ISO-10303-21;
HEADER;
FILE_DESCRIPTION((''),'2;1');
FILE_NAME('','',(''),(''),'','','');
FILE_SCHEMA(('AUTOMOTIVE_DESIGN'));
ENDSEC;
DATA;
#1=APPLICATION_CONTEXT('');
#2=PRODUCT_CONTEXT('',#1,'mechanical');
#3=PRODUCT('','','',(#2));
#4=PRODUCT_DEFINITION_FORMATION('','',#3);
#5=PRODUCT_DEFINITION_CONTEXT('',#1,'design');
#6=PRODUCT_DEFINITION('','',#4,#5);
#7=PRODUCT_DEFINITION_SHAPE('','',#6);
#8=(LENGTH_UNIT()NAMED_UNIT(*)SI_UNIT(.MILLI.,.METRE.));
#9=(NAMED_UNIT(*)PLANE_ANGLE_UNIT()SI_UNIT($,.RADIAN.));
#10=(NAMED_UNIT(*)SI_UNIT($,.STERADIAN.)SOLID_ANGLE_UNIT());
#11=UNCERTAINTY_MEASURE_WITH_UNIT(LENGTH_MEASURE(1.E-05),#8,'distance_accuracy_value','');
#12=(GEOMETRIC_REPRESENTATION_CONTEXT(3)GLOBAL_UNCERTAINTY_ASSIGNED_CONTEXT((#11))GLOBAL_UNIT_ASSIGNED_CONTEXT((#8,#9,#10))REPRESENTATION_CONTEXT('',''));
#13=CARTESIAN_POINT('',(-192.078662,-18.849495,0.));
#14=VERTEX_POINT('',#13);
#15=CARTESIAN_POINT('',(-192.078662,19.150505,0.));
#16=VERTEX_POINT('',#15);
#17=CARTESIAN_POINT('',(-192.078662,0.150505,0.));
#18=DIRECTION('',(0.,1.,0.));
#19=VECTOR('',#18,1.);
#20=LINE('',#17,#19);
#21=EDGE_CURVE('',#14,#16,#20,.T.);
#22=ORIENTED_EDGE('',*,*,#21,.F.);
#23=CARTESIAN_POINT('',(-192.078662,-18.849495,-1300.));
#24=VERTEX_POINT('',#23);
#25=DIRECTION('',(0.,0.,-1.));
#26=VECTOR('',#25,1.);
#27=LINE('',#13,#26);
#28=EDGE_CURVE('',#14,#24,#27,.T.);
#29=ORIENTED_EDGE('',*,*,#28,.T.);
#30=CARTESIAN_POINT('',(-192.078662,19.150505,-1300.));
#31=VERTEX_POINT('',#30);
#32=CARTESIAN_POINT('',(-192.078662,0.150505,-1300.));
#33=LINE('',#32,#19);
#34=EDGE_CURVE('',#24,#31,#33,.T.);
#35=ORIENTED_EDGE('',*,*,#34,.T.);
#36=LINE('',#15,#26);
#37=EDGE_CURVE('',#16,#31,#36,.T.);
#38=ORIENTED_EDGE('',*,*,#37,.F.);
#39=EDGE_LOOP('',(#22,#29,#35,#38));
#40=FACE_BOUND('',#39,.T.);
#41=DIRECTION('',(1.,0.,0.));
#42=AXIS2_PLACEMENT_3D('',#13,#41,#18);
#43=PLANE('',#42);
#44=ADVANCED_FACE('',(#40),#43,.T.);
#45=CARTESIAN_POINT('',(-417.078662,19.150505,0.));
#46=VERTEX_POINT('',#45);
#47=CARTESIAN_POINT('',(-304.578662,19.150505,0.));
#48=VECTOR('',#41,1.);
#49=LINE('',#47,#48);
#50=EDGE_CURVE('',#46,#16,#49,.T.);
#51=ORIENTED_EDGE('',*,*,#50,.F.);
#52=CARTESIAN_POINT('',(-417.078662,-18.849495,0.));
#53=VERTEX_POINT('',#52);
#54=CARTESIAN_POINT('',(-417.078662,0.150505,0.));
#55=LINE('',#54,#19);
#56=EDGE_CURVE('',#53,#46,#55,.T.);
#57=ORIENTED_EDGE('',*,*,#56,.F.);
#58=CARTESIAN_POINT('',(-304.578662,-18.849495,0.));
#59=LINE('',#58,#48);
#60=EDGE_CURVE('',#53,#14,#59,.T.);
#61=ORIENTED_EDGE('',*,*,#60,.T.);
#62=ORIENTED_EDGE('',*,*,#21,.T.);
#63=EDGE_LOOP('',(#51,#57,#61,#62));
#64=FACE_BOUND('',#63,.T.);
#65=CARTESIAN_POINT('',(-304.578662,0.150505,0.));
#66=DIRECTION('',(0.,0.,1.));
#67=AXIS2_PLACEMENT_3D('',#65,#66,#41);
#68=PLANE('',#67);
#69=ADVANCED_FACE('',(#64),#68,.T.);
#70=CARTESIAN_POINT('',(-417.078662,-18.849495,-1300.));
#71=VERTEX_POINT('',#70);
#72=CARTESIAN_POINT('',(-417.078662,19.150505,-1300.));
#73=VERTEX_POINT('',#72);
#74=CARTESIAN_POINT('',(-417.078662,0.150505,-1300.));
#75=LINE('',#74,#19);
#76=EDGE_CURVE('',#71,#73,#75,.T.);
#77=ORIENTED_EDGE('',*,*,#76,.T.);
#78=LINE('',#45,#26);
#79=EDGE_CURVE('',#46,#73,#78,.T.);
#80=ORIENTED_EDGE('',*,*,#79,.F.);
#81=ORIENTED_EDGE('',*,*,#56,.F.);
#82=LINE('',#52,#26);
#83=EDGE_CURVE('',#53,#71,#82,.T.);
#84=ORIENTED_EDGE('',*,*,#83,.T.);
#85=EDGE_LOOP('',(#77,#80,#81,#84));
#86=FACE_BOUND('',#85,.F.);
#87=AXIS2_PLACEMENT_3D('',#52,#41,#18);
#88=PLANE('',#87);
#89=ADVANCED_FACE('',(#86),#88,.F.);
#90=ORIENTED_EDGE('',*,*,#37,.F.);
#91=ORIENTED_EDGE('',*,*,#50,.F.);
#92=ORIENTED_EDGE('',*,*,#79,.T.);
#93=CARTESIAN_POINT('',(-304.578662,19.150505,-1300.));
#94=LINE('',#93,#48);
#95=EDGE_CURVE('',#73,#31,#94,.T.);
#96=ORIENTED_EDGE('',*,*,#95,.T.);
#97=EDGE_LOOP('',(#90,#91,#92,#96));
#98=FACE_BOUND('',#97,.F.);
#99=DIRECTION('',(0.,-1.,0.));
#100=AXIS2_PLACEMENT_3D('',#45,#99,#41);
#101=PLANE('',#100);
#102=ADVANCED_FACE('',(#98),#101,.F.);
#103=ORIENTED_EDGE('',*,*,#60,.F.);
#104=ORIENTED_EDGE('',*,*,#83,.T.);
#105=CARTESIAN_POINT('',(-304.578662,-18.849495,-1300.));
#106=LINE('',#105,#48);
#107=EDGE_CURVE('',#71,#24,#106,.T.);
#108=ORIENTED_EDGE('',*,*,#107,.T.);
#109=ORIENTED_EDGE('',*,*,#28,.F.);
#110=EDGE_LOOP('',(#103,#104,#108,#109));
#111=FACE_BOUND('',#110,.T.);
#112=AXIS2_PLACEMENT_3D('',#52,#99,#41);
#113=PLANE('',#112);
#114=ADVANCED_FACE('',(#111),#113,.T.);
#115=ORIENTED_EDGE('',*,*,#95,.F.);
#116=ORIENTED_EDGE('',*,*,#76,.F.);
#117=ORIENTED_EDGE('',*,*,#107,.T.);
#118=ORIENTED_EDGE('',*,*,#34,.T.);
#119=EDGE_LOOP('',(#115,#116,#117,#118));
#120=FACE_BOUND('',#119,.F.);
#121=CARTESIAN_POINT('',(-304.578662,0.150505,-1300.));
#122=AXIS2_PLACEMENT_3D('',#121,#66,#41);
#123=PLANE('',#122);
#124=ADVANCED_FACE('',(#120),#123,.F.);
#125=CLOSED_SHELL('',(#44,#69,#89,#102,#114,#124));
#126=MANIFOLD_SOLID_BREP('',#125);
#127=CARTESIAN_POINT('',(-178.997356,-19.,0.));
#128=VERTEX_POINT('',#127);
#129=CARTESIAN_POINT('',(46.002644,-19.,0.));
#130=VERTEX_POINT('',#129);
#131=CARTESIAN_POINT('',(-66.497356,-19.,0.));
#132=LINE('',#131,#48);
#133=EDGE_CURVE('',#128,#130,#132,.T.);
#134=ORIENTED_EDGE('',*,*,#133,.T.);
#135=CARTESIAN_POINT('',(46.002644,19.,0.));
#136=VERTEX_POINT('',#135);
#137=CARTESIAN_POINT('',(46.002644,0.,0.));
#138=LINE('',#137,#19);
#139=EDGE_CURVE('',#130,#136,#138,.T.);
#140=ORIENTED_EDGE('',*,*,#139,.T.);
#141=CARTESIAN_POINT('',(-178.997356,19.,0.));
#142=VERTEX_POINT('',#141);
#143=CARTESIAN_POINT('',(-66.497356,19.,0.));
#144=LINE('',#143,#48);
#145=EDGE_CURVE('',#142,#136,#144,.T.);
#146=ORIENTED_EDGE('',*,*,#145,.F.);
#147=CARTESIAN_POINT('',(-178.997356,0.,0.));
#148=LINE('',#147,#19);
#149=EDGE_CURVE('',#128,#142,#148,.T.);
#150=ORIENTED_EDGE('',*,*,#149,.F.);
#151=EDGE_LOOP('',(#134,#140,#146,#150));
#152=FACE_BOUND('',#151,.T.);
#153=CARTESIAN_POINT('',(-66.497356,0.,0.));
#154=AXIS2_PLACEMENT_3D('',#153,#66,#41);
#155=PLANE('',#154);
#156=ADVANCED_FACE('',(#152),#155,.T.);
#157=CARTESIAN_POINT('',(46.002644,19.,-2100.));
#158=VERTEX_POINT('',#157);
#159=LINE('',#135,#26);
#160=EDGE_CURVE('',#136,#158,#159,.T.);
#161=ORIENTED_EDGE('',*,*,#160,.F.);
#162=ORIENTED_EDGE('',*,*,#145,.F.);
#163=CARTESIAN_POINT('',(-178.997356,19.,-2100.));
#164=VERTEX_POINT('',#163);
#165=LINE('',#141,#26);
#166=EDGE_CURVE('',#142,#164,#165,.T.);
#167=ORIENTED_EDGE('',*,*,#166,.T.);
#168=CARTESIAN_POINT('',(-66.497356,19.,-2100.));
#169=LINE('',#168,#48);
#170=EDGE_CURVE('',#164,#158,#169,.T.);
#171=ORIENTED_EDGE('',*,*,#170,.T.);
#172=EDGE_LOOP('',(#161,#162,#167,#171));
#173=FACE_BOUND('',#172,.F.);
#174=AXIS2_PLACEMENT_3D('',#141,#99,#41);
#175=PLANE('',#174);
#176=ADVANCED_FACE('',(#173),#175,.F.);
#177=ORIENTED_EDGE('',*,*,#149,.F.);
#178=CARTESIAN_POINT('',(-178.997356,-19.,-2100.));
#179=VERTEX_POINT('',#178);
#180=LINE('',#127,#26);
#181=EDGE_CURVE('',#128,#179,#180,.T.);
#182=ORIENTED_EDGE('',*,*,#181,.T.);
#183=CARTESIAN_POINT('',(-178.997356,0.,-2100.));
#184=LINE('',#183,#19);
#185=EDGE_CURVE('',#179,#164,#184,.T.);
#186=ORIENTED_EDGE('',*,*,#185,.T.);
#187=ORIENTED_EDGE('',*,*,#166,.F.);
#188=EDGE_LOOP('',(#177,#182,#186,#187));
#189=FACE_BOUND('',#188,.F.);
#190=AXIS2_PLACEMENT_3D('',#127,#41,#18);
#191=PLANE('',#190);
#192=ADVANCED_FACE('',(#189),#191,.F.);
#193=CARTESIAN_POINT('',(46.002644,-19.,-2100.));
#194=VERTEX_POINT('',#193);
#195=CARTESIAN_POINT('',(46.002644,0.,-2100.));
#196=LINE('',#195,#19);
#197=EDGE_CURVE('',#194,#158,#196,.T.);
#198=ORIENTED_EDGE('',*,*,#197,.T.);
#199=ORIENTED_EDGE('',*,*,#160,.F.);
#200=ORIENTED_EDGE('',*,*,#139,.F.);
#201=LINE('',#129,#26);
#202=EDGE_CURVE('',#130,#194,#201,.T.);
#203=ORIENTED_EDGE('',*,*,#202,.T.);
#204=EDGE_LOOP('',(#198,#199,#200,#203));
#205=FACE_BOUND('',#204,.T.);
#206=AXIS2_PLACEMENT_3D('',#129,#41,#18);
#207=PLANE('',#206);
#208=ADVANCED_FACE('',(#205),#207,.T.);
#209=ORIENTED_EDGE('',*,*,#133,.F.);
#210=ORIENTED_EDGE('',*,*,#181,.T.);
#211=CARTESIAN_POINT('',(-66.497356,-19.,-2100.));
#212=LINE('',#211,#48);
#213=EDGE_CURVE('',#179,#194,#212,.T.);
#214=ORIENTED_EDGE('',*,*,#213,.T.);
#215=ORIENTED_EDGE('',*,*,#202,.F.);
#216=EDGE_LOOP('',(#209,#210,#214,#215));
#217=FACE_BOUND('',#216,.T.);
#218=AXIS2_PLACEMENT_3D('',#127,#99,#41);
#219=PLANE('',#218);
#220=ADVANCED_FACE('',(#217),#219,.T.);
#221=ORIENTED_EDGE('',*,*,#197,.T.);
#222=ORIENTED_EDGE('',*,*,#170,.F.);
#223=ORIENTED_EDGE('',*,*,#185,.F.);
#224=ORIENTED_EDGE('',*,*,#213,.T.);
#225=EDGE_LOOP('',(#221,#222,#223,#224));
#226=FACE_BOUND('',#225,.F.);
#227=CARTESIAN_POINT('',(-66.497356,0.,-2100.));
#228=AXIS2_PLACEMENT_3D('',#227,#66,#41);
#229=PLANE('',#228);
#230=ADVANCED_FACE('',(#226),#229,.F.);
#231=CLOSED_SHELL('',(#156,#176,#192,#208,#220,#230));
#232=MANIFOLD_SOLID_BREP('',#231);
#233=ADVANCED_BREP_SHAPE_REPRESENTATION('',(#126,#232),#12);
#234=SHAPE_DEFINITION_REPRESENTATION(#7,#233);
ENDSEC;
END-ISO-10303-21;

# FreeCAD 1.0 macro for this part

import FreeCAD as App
import Part
import Sketcher
from FreeCAD import Vector
Q = App.Units.Quantity

doc = App.newDocument("Part")
body = doc.addObject("PartDesign::Body", "Body")

sketch1 = doc.addObject("Sketcher::SketchObject", "Sketch")
body.addObject(sketch1)
sketch1.AttachmentSupport = (doc.XY_Plane, [""])
sketch1.MapMode = "FlatFace"
sketch1.addGeometry([
    Part.LineSegment(Vector(-179, 19, 0), Vector(-179, -19, 0)),
    Part.LineSegment(Vector(-179, -19, 0), Vector(46, -19, 0)),
    Part.LineSegment(Vector(46, -19, 0), Vector(46, 19, 0)),
    Part.LineSegment(Vector(46, 19, 0), Vector(-179, 19, 0)),
], False)
sketch1.addConstraint([
    Sketcher.Constraint("Coincident", 0, 2, 1, 1),
    Sketcher.Constraint("Coincident", 1, 2, 2, 1),
    Sketcher.Constraint("Coincident", 2, 2, 3, 1),
    Sketcher.Constraint("Coincident", 3, 2, 0, 1),
    Sketcher.Constraint("Vertical", 0),
    Sketcher.Constraint("Horizontal", 1),
    Sketcher.Constraint("Vertical", 2),
    Sketcher.Constraint("Horizontal", 3),
    Sketcher.Constraint("DistanceX", 1, 1, 1, 2, Q("225 mm")),
    Sketcher.Constraint("DistanceY", 0, 2, 0, 1, Q("38 mm")),
    Sketcher.Constraint("DistanceY", 0, 2, -1, 1, Q("19 mm")),
    Sketcher.Constraint("DistanceX", 0, 2, -1, 1, Q("178.997356 mm")),
])
pad1 = doc.addObject("PartDesign::Pad", "Pad")
body.addObject(pad1)
pad1.Profile = sketch1
pad1.Length = 2100
pad1.Reversed = True
body2 = doc.addObject("PartDesign::Body", "Body001")

sketch2 = doc.addObject("Sketcher::SketchObject", "Sketch001")
body2.addObject(sketch2)
sketch2.AttachmentSupport = (doc.getObject("XY_Plane001"), [""])
sketch2.MapMode = "FlatFace"
sketch2.addGeometry([
    Part.LineSegment(Vector(-417, 19, 0), Vector(-417, -19, 0)),
    Part.LineSegment(Vector(-417, -19, 0), Vector(-192, -19, 0)),
    Part.LineSegment(Vector(-192, -19, 0), Vector(-192, 19, 0)),
    Part.LineSegment(Vector(-192, 19, 0), Vector(-417, 19, 0)),
], False)
sketch2.addConstraint([
    Sketcher.Constraint("Coincident", 0, 2, 1, 1),
    Sketcher.Constraint("Coincident", 1, 2, 2, 1),
    Sketcher.Constraint("Coincident", 2, 2, 3, 1),
    Sketcher.Constraint("Coincident", 3, 2, 0, 1),
    Sketcher.Constraint("Vertical", 0),
    Sketcher.Constraint("Horizontal", 1),
    Sketcher.Constraint("Vertical", 2),
    Sketcher.Constraint("Horizontal", 3),
    Sketcher.Constraint("DistanceX", 1, 1, 1, 2, Q("225 mm")),
    Sketcher.Constraint("DistanceY", 0, 2, 0, 1, Q("38 mm")),
    Sketcher.Constraint("DistanceX", 0, 2, -1, 1, Q("417.078662 mm")),
    Sketcher.Constraint("DistanceY", 0, 2, -1, 1, Q("18.849495 mm")),
])
pad2 = doc.addObject("PartDesign::Pad", "Pad001")
body2.addObject(pad2)
pad2.Profile = sketch2
pad2.Length = 1300
pad2.Reversed = True

doc.recompute()
